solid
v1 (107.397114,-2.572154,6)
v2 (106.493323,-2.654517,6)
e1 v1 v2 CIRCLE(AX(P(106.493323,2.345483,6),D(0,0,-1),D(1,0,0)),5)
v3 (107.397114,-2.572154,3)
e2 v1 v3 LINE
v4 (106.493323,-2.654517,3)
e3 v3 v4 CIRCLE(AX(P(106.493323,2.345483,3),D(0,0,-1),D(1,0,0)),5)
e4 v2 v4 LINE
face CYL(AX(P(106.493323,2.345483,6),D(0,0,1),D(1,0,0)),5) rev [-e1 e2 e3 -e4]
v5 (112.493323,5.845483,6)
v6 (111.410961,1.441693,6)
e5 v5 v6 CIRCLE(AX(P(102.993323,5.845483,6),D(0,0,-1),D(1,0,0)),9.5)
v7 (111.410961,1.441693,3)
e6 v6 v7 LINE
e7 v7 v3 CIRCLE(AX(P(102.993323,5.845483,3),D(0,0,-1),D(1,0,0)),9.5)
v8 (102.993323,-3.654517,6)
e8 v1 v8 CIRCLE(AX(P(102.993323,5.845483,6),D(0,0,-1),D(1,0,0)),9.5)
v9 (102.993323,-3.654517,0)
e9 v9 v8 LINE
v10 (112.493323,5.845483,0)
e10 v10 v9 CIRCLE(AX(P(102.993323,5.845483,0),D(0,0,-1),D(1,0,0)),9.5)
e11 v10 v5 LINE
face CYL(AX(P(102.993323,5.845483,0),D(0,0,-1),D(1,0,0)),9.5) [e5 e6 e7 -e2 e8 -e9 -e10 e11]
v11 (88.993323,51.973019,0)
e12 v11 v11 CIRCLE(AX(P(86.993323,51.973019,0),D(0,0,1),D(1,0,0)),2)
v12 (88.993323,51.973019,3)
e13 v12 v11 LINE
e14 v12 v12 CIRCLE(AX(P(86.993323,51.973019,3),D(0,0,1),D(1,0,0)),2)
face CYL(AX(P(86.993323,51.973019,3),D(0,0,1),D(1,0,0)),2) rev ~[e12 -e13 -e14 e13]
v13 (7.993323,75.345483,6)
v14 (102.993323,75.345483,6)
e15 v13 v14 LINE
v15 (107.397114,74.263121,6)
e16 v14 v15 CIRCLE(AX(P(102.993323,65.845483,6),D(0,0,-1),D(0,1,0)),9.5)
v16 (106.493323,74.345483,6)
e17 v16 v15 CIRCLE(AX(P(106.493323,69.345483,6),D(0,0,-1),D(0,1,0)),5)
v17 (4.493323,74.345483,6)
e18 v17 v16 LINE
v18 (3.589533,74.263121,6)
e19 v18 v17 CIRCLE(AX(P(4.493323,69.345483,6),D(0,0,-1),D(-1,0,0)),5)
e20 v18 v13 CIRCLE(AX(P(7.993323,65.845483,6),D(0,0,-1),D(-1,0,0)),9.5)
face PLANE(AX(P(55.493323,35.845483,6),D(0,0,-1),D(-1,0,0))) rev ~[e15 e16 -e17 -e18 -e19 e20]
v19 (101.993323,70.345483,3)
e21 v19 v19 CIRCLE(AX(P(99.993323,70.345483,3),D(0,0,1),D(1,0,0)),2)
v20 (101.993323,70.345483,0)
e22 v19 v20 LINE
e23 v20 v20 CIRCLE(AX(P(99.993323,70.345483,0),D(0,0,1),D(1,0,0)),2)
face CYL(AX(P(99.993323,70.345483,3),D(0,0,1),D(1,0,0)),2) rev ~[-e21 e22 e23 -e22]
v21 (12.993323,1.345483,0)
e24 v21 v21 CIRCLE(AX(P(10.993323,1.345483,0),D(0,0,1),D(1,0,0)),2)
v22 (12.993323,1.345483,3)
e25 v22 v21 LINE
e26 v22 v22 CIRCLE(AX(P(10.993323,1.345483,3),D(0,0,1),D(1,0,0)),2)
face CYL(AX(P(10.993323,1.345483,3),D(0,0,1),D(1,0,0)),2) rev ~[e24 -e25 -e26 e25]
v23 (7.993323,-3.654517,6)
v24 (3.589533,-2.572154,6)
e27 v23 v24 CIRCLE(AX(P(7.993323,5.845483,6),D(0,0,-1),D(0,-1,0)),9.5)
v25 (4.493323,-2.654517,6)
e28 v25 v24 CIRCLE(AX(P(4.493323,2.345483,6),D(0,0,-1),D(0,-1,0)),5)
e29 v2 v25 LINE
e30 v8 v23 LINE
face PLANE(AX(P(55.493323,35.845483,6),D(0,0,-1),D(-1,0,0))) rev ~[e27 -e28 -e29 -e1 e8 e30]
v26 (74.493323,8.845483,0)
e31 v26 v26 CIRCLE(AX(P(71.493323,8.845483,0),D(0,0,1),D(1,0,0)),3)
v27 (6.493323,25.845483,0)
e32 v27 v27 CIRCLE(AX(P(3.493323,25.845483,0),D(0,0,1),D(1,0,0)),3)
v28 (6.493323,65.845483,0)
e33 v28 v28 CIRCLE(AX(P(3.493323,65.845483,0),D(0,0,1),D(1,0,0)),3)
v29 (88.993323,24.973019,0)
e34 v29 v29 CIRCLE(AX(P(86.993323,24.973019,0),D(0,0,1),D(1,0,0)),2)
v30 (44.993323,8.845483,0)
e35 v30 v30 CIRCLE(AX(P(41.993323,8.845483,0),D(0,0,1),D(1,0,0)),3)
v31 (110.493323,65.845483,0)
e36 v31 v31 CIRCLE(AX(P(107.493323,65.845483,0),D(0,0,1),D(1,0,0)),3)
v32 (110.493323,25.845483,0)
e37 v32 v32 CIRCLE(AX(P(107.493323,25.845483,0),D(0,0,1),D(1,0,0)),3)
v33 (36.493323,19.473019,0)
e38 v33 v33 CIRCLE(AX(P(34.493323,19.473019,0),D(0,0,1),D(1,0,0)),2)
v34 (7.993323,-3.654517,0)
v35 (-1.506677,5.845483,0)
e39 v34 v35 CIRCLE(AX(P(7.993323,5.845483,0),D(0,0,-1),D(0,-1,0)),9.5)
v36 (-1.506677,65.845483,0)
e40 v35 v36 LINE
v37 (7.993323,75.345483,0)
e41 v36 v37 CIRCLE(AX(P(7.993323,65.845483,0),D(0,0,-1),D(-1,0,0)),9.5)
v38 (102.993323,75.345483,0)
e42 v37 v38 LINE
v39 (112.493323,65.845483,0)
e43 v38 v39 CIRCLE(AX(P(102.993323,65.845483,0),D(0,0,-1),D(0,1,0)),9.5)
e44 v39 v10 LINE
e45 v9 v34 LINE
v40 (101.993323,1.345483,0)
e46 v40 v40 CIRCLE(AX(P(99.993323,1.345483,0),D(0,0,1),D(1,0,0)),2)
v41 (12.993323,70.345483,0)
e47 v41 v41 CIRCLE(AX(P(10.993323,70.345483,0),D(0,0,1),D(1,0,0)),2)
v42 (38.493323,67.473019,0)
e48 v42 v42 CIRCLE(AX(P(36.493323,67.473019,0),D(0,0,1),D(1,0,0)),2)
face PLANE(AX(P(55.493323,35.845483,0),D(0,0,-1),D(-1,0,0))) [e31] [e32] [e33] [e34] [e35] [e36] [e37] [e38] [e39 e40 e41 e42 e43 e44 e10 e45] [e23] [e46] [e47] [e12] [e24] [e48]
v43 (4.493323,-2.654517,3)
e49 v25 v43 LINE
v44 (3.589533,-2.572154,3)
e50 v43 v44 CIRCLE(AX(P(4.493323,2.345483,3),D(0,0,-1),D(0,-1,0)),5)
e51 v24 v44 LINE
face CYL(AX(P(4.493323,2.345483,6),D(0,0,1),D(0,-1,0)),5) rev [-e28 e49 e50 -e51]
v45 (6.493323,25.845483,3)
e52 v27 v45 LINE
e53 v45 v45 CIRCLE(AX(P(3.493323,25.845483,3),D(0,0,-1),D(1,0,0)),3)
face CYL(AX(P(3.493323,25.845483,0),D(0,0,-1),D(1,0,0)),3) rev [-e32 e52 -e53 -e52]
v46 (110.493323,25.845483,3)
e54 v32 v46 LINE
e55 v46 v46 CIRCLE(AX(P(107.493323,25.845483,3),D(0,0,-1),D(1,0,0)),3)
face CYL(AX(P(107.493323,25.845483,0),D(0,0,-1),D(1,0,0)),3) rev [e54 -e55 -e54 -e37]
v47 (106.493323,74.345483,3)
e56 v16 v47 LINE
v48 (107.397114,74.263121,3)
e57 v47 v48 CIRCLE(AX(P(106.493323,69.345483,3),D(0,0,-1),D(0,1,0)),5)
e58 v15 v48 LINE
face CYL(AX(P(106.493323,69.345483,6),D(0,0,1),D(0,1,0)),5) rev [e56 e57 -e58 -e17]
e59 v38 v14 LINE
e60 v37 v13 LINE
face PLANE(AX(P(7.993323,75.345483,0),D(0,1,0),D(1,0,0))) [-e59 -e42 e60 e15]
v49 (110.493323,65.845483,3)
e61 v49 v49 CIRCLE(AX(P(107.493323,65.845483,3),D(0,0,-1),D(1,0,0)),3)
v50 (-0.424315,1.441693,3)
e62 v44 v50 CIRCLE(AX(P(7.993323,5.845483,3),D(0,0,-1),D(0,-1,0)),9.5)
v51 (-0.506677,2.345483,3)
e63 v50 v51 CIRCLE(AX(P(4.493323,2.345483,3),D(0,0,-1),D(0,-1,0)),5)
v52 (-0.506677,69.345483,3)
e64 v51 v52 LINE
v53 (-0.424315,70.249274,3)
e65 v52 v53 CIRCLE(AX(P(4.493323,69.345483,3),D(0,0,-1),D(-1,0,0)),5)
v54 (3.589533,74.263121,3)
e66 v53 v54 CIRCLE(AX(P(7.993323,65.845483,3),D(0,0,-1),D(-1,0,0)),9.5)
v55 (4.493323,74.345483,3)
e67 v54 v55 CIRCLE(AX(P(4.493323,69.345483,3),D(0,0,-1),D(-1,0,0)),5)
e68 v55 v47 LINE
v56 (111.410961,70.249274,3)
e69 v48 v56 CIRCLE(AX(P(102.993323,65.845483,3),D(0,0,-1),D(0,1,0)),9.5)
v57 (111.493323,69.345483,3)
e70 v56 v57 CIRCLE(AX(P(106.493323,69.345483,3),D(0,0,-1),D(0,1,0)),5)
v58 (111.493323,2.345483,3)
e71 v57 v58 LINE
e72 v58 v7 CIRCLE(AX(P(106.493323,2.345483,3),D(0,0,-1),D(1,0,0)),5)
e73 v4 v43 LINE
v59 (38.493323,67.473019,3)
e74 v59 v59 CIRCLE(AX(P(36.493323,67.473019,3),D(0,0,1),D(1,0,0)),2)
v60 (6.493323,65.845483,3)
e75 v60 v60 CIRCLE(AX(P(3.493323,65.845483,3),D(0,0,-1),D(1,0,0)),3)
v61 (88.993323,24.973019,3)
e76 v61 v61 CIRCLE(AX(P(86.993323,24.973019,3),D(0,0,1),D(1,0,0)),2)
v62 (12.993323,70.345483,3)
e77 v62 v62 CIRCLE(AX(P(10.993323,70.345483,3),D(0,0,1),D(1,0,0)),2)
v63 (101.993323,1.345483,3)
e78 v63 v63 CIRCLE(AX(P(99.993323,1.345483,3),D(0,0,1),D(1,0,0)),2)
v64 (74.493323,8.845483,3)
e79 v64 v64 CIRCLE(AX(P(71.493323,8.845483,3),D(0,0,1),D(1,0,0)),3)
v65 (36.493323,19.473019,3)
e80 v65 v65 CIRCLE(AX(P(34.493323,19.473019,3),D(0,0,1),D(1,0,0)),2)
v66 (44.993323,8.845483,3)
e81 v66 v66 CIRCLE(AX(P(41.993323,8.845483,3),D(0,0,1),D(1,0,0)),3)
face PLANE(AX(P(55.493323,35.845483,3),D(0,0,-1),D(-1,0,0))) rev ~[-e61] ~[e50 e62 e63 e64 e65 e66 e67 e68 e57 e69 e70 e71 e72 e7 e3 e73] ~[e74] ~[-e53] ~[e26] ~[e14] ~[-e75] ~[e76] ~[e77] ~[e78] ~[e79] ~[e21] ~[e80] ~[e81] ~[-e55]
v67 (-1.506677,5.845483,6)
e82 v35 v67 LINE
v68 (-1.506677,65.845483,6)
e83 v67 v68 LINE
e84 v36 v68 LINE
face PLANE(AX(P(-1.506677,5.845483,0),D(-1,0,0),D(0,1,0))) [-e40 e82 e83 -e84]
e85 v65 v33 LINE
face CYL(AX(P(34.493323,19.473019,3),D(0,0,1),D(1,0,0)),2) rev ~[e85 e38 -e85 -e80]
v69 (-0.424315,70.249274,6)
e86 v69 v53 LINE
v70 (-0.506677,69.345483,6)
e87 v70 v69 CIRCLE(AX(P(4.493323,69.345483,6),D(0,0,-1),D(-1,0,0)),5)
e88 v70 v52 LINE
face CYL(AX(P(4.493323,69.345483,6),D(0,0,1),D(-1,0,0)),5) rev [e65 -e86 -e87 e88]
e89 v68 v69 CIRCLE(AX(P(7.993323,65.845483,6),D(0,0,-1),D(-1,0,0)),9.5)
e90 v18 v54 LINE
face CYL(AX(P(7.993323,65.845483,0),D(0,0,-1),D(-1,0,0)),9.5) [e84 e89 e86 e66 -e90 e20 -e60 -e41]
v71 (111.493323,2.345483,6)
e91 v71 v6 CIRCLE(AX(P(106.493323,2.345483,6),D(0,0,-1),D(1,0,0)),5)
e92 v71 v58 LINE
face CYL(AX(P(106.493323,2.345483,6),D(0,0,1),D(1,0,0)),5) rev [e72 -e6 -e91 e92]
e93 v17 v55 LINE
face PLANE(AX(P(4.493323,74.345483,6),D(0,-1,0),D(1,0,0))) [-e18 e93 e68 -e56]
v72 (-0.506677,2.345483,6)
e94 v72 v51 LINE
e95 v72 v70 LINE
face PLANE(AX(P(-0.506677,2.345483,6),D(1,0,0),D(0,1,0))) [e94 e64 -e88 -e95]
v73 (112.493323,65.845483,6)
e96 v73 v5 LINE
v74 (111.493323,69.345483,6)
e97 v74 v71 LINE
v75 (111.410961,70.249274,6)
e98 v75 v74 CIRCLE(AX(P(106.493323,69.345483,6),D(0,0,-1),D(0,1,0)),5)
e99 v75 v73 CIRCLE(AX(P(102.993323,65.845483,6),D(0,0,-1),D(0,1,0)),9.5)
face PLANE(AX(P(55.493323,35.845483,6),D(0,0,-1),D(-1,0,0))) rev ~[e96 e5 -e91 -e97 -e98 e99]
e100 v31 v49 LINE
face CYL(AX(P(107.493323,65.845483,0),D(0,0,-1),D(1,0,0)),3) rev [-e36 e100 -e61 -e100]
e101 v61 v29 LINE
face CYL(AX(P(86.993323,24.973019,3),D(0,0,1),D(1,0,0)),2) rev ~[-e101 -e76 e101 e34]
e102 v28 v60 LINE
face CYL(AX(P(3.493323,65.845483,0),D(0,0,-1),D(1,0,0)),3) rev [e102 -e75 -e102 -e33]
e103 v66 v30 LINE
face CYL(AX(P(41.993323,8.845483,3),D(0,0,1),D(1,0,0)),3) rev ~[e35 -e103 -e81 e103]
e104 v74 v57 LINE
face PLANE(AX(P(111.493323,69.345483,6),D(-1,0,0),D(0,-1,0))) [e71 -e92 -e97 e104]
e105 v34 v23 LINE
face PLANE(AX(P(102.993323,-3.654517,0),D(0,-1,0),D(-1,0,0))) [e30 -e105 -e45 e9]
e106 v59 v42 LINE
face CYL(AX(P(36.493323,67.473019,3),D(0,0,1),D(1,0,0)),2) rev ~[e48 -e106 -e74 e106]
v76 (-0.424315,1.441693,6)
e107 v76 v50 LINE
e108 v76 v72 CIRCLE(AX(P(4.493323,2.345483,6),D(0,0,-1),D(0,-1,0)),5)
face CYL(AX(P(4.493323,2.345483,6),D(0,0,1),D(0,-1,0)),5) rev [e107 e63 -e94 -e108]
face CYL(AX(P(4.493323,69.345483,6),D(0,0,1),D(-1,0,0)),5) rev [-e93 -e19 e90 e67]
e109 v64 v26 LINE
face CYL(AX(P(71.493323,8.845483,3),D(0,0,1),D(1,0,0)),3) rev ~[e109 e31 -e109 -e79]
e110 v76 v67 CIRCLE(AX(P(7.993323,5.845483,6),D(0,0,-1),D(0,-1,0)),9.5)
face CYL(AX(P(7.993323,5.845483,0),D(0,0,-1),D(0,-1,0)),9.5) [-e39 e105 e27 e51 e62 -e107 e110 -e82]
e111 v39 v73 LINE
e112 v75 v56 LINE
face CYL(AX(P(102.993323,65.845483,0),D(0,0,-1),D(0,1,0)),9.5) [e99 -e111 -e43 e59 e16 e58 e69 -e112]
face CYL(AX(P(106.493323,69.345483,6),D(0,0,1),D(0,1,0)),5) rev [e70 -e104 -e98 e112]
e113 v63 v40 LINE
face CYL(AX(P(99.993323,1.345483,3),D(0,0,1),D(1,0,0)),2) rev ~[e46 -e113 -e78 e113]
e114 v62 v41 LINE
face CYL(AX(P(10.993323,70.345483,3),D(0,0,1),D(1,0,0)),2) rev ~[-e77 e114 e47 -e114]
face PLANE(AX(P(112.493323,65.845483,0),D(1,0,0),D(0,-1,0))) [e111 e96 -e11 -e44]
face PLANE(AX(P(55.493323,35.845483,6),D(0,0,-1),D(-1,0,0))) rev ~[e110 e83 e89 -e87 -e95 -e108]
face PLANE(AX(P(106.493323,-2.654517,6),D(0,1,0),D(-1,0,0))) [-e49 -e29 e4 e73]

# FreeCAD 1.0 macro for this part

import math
import FreeCAD as App
import Part
import Sketcher
from FreeCAD import Vector
Q = App.Units.Quantity

doc = App.newDocument("Part")
body = doc.addObject("PartDesign::Body", "Body")

# Sketch on XY plane
sketch1 = doc.addObject("Sketcher::SketchObject", "Sketch")
body.addObject(sketch1)
sketch1.AttachmentSupport = (doc.XY_Plane, [""])
sketch1.MapMode = "FlatFace"
sketch1.addGeometry([
    Part.LineSegment(Vector(102.993323, 75.345483, 0), Vector(7.993323, 75.345483, 0)),  # 0
    Part.ArcOfCircle(Part.Circle(Vector(7.993323, 65.845483, 0), Vector(0, 0, 1), 9.5), math.radians(90), math.radians(180)),  # 1
    Part.LineSegment(Vector(-1.506677, 65.845483, 0), Vector(-1.506677, 5.845483, 0)),  # 2
    Part.ArcOfCircle(Part.Circle(Vector(7.993323, 5.845483, 0), Vector(0, 0, 1), 9.5), math.radians(180), math.radians(270)),  # 3
    Part.LineSegment(Vector(7.993323, -3.654517, 0), Vector(102.993323, -3.654517, 0)),  # 4
    Part.ArcOfCircle(Part.Circle(Vector(102.993323, 5.845483, 0), Vector(0, 0, 1), 9.5), math.radians(-90), math.radians(0)),  # 5
    Part.LineSegment(Vector(112.493323, 5.845483, 0), Vector(112.493323, 65.845483, 0)),  # 6
    Part.ArcOfCircle(Part.Circle(Vector(102.993323, 65.845483, 0), Vector(0, 0, 1), 9.5), math.radians(0), math.radians(90)),  # 7
    Part.Circle(Vector(107.493323, 25.845483, 0), Vector(0, 0, 1), 3),  # 8
    Part.Circle(Vector(3.493323, 25.845483, 0), Vector(0, 0, 1), 3),  # 9
    Part.Circle(Vector(107.493323, 65.845483, 0), Vector(0, 0, 1), 3),  # 10
    Part.Circle(Vector(3.493323, 65.845483, 0), Vector(0, 0, 1), 3),  # 11
], False)
sketch1.addConstraint([
    Sketcher.Constraint("Tangent", 0, 2, 1, 1),
    Sketcher.Constraint("Tangent", 1, 2, 2, 1),
    Sketcher.Constraint("Tangent", 2, 2, 3, 1),
    Sketcher.Constraint("Tangent", 3, 2, 4, 1),
    Sketcher.Constraint("Tangent", 4, 2, 5, 1),
    Sketcher.Constraint("Tangent", 5, 2, 6, 1),
    Sketcher.Constraint("Tangent", 6, 2, 7, 1),
    Sketcher.Constraint("Tangent", 7, 2, 0, 1),
    Sketcher.Constraint("Horizontal", 0),
    Sketcher.Constraint("Vertical", 2),
    Sketcher.Constraint("Horizontal", 4),
    Sketcher.Constraint("Vertical", 6),
    Sketcher.Constraint("Equal", 1, 3),
    Sketcher.Constraint("Equal", 3, 5),
    Sketcher.Constraint("Equal", 5, 7),
    Sketcher.Constraint("Equal", 8, 9),
    Sketcher.Constraint("Equal", 9, 10),
    Sketcher.Constraint("Equal", 10, 11),
    Sketcher.Constraint("Horizontal", 8, 3, 9, 3),
    Sketcher.Constraint("Horizontal", 7, 3, 10, 3),
    Sketcher.Constraint("Horizontal", 10, 3, 11, 3),
    Sketcher.Constraint("Vertical", 8, 3, 10, 3),
    Sketcher.Constraint("Vertical", 9, 3, 11, 3),
    Sketcher.Constraint("Diameter", 8, Q("6 mm")),
    Sketcher.Constraint("Radius", 1, Q("9.5 mm")),
    Sketcher.Constraint("DistanceX", 0, 2, 0, 1, Q("95 mm")),
    Sketcher.Constraint("DistanceY", 2, 2, 2, 1, Q("60 mm")),
    Sketcher.Constraint("DistanceY", 5, 3, 8, 3, Q("20 mm")),
    Sketcher.Constraint("DistanceX", 9, 3, 8, 3, Q("104 mm")),
    Sketcher.Constraint("DistanceX", 1, 2, 11, 3, Q("5 mm")),
    Sketcher.Constraint("DistanceX", -1, 1, 1, 3, Q("7.993323 mm")),
    Sketcher.Constraint("DistanceY", -1, 1, 1, 3, Q("65.845483 mm")),
])
pad1 = doc.addObject("PartDesign::Pad", "Pad")
body.addObject(pad1)
pad1.Profile = sketch1
pad1.Length = 6

# Sketch on XY plane
sketch2 = doc.addObject("Sketcher::SketchObject", "Sketch001")
body.addObject(sketch2)
sketch2.AttachmentSupport = (doc.XY_Plane, [""])
sketch2.MapMode = "FlatFace"
sketch2.AttachmentOffset = App.Placement(Vector(0, 0, 6), App.Rotation())
sketch2.addGeometry([
    Part.LineSegment(Vector(106.493323, 74.345483, 0), Vector(4.493323, 74.345483, 0)),  # 0
    Part.ArcOfCircle(Part.Circle(Vector(4.493323, 69.345483, 0), Vector(0, 0, 1), 5), math.radians(90), math.radians(180)),  # 1
    Part.LineSegment(Vector(-0.506677, 69.345483, 0), Vector(-0.506677, 2.345483, 0)),  # 2
    Part.ArcOfCircle(Part.Circle(Vector(4.493323, 2.345483, 0), Vector(0, 0, 1), 5), math.radians(180), math.radians(270)),  # 3
    Part.LineSegment(Vector(4.493323, -2.654517, 0), Vector(106.493323, -2.654517, 0)),  # 4
    Part.ArcOfCircle(Part.Circle(Vector(106.493323, 2.345483, 0), Vector(0, 0, 1), 5), math.radians(-90), math.radians(0)),  # 5
    Part.LineSegment(Vector(111.493323, 2.345483, 0), Vector(111.493323, 69.345483, 0)),  # 6
    Part.ArcOfCircle(Part.Circle(Vector(106.493323, 69.345483, 0), Vector(0, 0, 1), 5), math.radians(0), math.radians(90)),  # 7
], False)
sketch2.addConstraint([
    Sketcher.Constraint("Tangent", 0, 2, 1, 1),
    Sketcher.Constraint("Tangent", 1, 2, 2, 1),
    Sketcher.Constraint("Tangent", 2, 2, 3, 1),
    Sketcher.Constraint("Tangent", 3, 2, 4, 1),
    Sketcher.Constraint("Tangent", 4, 2, 5, 1),
    Sketcher.Constraint("Tangent", 5, 2, 6, 1),
    Sketcher.Constraint("Tangent", 6, 2, 7, 1),
    Sketcher.Constraint("Tangent", 7, 2, 0, 1),
    Sketcher.Constraint("Horizontal", 0),
    Sketcher.Constraint("Vertical", 2),
    Sketcher.Constraint("Horizontal", 4),
    Sketcher.Constraint("Vertical", 6),
    Sketcher.Constraint("Equal", 1, 3),
    Sketcher.Constraint("Equal", 3, 5),
    Sketcher.Constraint("Equal", 5, 7),
    Sketcher.Constraint("Radius", 1, Q("5 mm")),
    Sketcher.Constraint("DistanceX", 0, 2, 0, 1, Q("102 mm")),
    Sketcher.Constraint("DistanceY", 2, 2, 2, 1, Q("67 mm")),
    Sketcher.Constraint("DistanceX", -1, 1, 1, 3, Q("4.493323 mm")),
    Sketcher.Constraint("DistanceY", -1, 1, 1, 3, Q("69.345483 mm")),
])
pocket1 = doc.addObject("PartDesign::Pocket", "Pocket")
body.addObject(pocket1)
pocket1.Profile = sketch2
pocket1.Length = 3

# Sketch on XY plane
sketch3 = doc.addObject("Sketcher::SketchObject", "Sketch002")
body.addObject(sketch3)
sketch3.AttachmentSupport = (doc.XY_Plane, [""])
sketch3.MapMode = "FlatFace"
sketch3.AttachmentOffset = App.Placement(Vector(0, 0, 3), App.Rotation())
sketch3.addGeometry([
    Part.Circle(Vector(10.993323, 70.345483, 0), Vector(0, 0, 1), 2),  # 0
    Part.Circle(Vector(99.993323, 70.345483, 0), Vector(0, 0, 1), 2),  # 1
    Part.Circle(Vector(10.993323, 1.345483, 0), Vector(0, 0, 1), 2),  # 2
    Part.Circle(Vector(99.993323, 1.345483, 0), Vector(0, 0, 1), 2),  # 3
    Part.Circle(Vector(41.993323, 8.845483, 0), Vector(0, 0, 1), 3),  # 4
    Part.Circle(Vector(71.493323, 8.845483, 0), Vector(0, 0, 1), 3),  # 5
    Part.Circle(Vector(36.493323, 67.473019, 0), Vector(0, 0, 1), 2),  # 6
    Part.Circle(Vector(34.493323, 19.473019, 0), Vector(0, 0, 1), 2),  # 7
    Part.Circle(Vector(86.993323, 51.973019, 0), Vector(0, 0, 1), 2),  # 8
    Part.Circle(Vector(86.993323, 24.973019, 0), Vector(0, 0, 1), 2),  # 9
], False)
sketch3.addConstraint([
    Sketcher.Constraint("Equal", 0, 1),
    Sketcher.Constraint("Equal", 1, 2),
    Sketcher.Constraint("Equal", 2, 3),
    Sketcher.Constraint("Equal", 4, 5),
    Sketcher.Constraint("Equal", 3, 6),
    Sketcher.Constraint("Equal", 6, 7),
    Sketcher.Constraint("Equal", 7, 8),
    Sketcher.Constraint("Equal", 8, 9),
    Sketcher.Constraint("Horizontal", 0, 3, 1, 3),
    Sketcher.Constraint("Horizontal", 2, 3, 3, 3),
    Sketcher.Constraint("Horizontal", 4, 3, 5, 3),
    Sketcher.Constraint("Vertical", 0, 3, 2, 3),
    Sketcher.Constraint("Vertical", 1, 3, 3, 3),
    Sketcher.Constraint("Vertical", 8, 3, 9, 3),
    Sketcher.Constraint("Diameter", 0, Q("4 mm")),
    Sketcher.Constraint("Diameter", 4, Q("6 mm")),
    Sketcher.Constraint("DistanceX", 0, 3, 1, 3, Q("89 mm")),
    Sketcher.Constraint("DistanceY", 2, 3, 0, 3, Q("69 mm")),
    Sketcher.Constraint("DistanceX", 2, 3, 4, 3, Q("31 mm")),
    Sketcher.Constraint("DistanceX", 6, 3, 5, 3, Q("35 mm")),
    Sketcher.Constraint("DistanceX", 7, 3, 5, 3, Q("37 mm")),
    Sketcher.Constraint("DistanceY", 7, 3, 6, 3, Q("48 mm")),
    Sketcher.Constraint("DistanceX", 8, 3, 1, 3, Q("13 mm")),
    Sketcher.Constraint("DistanceY", 9, 3, 8, 3, Q("27 mm")),
    Sketcher.Constraint("DistanceY", 2, 3, 4, 3, Q("7.5 mm")),
    Sketcher.Constraint("DistanceX", 5, 3, 3, 3, Q("28.5 mm")),
    Sketcher.Constraint("DistanceY", 8, 3, 6, 3, Q("15.5 mm")),
    Sketcher.Constraint("DistanceY", -1, 1, 6, 3, Q("67.473019 mm")),
    Sketcher.Constraint("DistanceX", -1, 1, 0, 3, Q("10.993323 mm")),
    Sketcher.Constraint("DistanceY", -1, 1, 0, 3, Q("70.345483 mm")),
])
pocket2 = doc.addObject("PartDesign::Pocket", "Pocket001")
body.addObject(pocket2)
pocket2.Profile = sketch3
pocket2.Length = 3

doc.recompute()
